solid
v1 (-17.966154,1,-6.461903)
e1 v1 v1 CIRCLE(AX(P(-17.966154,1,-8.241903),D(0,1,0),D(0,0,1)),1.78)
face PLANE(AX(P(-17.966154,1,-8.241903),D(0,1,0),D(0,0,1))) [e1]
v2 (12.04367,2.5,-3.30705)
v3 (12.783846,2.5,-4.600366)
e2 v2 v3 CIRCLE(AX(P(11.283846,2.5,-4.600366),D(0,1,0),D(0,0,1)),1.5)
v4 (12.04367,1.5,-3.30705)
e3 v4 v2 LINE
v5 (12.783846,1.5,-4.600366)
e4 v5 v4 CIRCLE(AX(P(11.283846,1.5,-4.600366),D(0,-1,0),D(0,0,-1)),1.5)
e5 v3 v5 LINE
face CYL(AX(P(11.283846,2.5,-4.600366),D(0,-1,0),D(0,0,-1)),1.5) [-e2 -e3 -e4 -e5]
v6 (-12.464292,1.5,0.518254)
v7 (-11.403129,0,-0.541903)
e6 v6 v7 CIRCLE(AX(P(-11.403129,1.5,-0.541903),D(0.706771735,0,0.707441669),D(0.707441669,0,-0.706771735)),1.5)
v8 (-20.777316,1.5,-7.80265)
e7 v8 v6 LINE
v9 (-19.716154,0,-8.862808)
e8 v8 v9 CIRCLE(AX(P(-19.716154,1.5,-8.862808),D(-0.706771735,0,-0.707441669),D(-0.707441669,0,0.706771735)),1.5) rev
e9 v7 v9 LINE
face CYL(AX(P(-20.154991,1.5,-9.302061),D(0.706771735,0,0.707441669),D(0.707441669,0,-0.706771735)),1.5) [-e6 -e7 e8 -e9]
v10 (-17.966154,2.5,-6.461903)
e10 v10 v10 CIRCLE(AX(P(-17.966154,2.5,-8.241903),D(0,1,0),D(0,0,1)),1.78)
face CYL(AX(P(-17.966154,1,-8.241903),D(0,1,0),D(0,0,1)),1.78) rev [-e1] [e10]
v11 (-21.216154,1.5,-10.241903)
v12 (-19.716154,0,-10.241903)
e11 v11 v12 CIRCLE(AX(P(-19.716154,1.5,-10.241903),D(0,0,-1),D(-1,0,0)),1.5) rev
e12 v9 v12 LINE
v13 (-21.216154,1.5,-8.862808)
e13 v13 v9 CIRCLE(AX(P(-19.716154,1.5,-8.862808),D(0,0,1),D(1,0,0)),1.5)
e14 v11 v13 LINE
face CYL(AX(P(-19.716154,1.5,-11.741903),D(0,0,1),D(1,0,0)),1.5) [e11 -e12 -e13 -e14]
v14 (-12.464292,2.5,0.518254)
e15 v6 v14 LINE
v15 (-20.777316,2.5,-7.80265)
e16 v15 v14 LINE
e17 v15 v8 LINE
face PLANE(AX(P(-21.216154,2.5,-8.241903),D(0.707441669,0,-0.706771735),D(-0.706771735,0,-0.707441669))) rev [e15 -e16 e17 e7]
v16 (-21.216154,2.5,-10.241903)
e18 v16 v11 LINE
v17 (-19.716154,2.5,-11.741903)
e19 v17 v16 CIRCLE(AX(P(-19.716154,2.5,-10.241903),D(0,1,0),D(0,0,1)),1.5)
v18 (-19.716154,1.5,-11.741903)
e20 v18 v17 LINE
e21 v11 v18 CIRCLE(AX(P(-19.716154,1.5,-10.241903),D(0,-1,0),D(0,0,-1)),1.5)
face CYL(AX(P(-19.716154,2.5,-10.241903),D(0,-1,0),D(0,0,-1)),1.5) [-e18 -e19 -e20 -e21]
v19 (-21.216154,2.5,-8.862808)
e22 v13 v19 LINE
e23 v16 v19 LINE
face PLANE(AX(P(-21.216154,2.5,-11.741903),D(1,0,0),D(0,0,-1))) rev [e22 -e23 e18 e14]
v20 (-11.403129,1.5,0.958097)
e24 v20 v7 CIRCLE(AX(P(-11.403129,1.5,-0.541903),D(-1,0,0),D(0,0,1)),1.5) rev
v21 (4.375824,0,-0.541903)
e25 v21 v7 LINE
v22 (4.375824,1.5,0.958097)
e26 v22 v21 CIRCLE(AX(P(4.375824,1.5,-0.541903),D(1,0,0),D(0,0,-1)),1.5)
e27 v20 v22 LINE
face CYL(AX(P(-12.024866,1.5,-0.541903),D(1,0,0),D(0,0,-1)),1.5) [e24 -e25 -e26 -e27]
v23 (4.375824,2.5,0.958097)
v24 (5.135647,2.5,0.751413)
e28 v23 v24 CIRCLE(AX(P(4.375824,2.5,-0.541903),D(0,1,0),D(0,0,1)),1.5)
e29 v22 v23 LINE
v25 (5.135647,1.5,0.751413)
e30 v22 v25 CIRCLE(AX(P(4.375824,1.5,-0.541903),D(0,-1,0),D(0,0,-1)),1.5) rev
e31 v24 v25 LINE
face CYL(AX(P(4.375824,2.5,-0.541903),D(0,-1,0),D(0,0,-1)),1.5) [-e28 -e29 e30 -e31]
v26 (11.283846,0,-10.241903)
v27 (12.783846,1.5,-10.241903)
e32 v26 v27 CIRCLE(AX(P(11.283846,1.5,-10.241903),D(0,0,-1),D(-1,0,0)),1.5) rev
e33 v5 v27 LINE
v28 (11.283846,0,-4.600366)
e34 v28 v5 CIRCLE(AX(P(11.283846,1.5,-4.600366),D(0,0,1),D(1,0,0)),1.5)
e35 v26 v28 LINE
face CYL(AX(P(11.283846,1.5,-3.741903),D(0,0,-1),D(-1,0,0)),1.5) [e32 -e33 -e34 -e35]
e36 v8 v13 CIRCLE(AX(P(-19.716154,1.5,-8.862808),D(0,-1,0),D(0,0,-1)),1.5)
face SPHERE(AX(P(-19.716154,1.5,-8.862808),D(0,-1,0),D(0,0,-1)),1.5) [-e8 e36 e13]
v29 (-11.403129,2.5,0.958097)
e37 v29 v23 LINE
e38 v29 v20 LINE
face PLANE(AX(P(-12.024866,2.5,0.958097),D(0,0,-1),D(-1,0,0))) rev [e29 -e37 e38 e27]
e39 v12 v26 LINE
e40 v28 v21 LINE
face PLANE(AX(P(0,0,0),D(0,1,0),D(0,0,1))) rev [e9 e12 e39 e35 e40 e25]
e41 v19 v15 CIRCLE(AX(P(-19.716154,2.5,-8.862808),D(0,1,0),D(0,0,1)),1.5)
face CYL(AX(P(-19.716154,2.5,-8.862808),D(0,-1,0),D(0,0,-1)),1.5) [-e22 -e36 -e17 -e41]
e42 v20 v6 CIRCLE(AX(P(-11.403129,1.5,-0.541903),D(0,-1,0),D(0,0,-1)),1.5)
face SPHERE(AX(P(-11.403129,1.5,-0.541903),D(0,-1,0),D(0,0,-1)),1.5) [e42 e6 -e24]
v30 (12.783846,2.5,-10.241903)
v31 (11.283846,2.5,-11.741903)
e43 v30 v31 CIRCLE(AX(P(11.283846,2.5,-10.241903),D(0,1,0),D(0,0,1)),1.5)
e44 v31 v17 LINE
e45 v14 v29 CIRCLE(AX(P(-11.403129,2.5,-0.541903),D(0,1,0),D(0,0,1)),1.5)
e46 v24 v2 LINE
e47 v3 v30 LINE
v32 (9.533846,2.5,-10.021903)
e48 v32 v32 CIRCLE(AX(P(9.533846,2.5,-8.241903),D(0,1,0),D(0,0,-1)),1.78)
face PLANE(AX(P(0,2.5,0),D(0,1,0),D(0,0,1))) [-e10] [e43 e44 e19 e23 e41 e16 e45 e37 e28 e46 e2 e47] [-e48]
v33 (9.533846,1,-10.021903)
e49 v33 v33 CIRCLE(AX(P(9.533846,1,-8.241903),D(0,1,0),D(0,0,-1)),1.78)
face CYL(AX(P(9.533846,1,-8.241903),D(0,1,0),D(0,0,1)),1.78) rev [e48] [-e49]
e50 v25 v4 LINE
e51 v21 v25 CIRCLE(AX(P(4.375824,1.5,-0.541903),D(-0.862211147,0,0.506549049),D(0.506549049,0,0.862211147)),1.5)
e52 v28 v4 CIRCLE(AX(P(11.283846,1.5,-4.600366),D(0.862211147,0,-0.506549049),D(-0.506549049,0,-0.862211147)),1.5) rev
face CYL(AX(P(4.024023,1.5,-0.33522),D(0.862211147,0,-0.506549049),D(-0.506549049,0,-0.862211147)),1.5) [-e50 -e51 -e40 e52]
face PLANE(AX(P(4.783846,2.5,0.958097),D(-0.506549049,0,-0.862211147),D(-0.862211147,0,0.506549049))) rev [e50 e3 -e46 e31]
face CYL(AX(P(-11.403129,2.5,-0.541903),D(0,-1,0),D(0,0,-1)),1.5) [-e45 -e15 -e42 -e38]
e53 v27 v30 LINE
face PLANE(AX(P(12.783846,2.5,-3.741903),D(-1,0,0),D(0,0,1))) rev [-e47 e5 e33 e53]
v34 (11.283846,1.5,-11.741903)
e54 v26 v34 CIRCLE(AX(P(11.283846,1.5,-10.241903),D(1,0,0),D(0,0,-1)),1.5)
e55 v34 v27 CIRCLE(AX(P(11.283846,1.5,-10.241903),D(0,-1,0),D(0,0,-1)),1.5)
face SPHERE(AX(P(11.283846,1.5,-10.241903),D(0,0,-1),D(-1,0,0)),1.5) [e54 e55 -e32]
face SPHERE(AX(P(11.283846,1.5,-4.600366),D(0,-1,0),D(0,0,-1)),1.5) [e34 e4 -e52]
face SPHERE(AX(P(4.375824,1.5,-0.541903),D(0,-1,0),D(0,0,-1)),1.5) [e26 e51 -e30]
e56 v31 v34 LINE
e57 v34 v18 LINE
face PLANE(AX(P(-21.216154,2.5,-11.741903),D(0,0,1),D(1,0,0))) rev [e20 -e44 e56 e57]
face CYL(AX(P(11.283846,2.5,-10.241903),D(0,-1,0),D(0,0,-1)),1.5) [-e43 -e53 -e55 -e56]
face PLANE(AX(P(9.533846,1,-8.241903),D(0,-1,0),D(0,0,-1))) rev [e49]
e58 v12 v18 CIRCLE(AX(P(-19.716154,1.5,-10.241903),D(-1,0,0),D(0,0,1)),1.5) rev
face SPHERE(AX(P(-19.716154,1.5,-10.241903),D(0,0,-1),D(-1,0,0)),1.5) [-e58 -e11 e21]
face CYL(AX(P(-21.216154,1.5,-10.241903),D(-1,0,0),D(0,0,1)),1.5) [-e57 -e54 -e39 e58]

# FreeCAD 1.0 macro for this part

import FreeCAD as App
import Part
import Sketcher

V = App.Vector
Q = App.Units.Quantity


def edges_at(feature, points):
    """Names of the edges that pass closest to the given points."""
    edges = feature.Shape.Edges
    near = lambda p: min(range(len(edges)), key=lambda i: edges[i].distToShape(Part.Vertex(*p))[0])
    return sorted({f"Edge{near(p) + 1}" for p in points})


def add_polygon(sketch, points):
    """Adds a closed chain of lines whose ends are joined by coincident constraints."""
    first, n = sketch.GeometryCount, len(points)
    for a, b in zip(points, points[1:] + points[:1]):
        sketch.addGeometry(Part.LineSegment(App.Vector(*a, 0), App.Vector(*b, 0)), False)
    for i in range(n):
        sketch.addConstraint(Sketcher.Constraint("Coincident", first + i, 2, first + (i + 1) % n, 1))

doc = App.newDocument("Part")
body = doc.addObject("PartDesign::Body", "Body")

sketch1 = body.newObject("Sketcher::SketchObject", "Sketch")
sketch1.AttachmentSupport = (doc.getObject("XZ_Plane"), [""])
sketch1.MapMode = "FlatFace"
add_polygon(sketch1, [(-21.216154, -11.741903), (-21.216154, -8.241903), (-12.024866, 0.958097), (4.783846, 0.958097), (12.783846, -3.741903), (12.783846, -11.741903)])
sketch1.addConstraint([
    Sketcher.Constraint("Vertical", 0),
    Sketcher.Constraint("Horizontal", 2),
    Sketcher.Constraint("Vertical", 4),
    Sketcher.Constraint("Horizontal", 5),
    Sketcher.Constraint("DistanceX", 5, 2, 5, 1, Q("34 mm")),
    Sketcher.Constraint("DistanceY", 4, 2, 4, 1, Q("8 mm")),
    Sketcher.Constraint("DistanceY", 0, 1, 0, 2, Q("3.5 mm")),
    Sketcher.Constraint("DistanceX", 0, 2, 2, 2, Q("26 mm")),
    Sketcher.Constraint("DistanceY", 0, 2, 1, 2, Q("9.2 mm")),
    Sketcher.Constraint("DistanceX", 2, 1, 2, 2, Q("16.808712 mm")),
    Sketcher.Constraint("DistanceX", 0, 2, -1, 1, Q("21.216154 mm")),
    Sketcher.Constraint("DistanceY", 0, 2, -1, 1, Q("8.241903 mm")),
])
pad1 = body.newObject("PartDesign::Pad", "Pad")
pad1.Profile = sketch1
pad1.Length = 2.5
pad1.Reversed = True

sketch2 = body.newObject("Sketcher::SketchObject", "Sketch001")
sketch2.AttachmentSupport = (doc.getObject("XZ_Plane"), [""])
sketch2.MapMode = "FlatFace"
sketch2.AttachmentOffset = App.Placement(V(0, 0, -2.5), App.Rotation())
sketch2.addGeometry([
    Part.Circle(V(-17.966154, -8.241903, 0), V(0, 0, 1), 1.78),
    Part.Circle(V(9.533846, -8.241903, 0), V(0, 0, 1), 1.78),
], False)
sketch2.addConstraint([
    Sketcher.Constraint("Equal", 0, 1),
    Sketcher.Constraint("Horizontal", 0, 3, 1, 3),
    Sketcher.Constraint("Diameter", 0, Q("3.56 mm")),
    Sketcher.Constraint("DistanceX", 0, 3, 1, 3, Q("27.5 mm")),
    Sketcher.Constraint("DistanceX", 0, 3, -1, 1, Q("17.966154 mm")),
    Sketcher.Constraint("DistanceY", 0, 3, -1, 1, Q("8.241903 mm")),
])
pocket1 = body.newObject("PartDesign::Pocket", "Pocket")
pocket1.Profile = sketch2
pocket1.Length = 1.5
pocket1.Reversed = True
doc.recompute()

fillet = body.newObject("PartDesign::Fillet", "Fillet")
fillet.Base = (pocket1, edges_at(pocket1, [
    (12.784, 1.25, -11.742),
    (12.784, 1.25, -3.742),
    (4.784, 1.25, 0.958),
    (-12.025, 1.25, 0.958),
    (-21.216, 1.25, -8.242),
    (-21.216, 1.25, -11.742),
    (12.784, 0, -7.742),
    (8.784, 0, -1.392),
    (-3.621, 0, 0.958),
    (-16.621, 0, -3.642),
    (-21.216, 0, -9.992),
    (-4.216, 0, -11.742),
]))
fillet.Radius = 1.5

doc.recompute()
